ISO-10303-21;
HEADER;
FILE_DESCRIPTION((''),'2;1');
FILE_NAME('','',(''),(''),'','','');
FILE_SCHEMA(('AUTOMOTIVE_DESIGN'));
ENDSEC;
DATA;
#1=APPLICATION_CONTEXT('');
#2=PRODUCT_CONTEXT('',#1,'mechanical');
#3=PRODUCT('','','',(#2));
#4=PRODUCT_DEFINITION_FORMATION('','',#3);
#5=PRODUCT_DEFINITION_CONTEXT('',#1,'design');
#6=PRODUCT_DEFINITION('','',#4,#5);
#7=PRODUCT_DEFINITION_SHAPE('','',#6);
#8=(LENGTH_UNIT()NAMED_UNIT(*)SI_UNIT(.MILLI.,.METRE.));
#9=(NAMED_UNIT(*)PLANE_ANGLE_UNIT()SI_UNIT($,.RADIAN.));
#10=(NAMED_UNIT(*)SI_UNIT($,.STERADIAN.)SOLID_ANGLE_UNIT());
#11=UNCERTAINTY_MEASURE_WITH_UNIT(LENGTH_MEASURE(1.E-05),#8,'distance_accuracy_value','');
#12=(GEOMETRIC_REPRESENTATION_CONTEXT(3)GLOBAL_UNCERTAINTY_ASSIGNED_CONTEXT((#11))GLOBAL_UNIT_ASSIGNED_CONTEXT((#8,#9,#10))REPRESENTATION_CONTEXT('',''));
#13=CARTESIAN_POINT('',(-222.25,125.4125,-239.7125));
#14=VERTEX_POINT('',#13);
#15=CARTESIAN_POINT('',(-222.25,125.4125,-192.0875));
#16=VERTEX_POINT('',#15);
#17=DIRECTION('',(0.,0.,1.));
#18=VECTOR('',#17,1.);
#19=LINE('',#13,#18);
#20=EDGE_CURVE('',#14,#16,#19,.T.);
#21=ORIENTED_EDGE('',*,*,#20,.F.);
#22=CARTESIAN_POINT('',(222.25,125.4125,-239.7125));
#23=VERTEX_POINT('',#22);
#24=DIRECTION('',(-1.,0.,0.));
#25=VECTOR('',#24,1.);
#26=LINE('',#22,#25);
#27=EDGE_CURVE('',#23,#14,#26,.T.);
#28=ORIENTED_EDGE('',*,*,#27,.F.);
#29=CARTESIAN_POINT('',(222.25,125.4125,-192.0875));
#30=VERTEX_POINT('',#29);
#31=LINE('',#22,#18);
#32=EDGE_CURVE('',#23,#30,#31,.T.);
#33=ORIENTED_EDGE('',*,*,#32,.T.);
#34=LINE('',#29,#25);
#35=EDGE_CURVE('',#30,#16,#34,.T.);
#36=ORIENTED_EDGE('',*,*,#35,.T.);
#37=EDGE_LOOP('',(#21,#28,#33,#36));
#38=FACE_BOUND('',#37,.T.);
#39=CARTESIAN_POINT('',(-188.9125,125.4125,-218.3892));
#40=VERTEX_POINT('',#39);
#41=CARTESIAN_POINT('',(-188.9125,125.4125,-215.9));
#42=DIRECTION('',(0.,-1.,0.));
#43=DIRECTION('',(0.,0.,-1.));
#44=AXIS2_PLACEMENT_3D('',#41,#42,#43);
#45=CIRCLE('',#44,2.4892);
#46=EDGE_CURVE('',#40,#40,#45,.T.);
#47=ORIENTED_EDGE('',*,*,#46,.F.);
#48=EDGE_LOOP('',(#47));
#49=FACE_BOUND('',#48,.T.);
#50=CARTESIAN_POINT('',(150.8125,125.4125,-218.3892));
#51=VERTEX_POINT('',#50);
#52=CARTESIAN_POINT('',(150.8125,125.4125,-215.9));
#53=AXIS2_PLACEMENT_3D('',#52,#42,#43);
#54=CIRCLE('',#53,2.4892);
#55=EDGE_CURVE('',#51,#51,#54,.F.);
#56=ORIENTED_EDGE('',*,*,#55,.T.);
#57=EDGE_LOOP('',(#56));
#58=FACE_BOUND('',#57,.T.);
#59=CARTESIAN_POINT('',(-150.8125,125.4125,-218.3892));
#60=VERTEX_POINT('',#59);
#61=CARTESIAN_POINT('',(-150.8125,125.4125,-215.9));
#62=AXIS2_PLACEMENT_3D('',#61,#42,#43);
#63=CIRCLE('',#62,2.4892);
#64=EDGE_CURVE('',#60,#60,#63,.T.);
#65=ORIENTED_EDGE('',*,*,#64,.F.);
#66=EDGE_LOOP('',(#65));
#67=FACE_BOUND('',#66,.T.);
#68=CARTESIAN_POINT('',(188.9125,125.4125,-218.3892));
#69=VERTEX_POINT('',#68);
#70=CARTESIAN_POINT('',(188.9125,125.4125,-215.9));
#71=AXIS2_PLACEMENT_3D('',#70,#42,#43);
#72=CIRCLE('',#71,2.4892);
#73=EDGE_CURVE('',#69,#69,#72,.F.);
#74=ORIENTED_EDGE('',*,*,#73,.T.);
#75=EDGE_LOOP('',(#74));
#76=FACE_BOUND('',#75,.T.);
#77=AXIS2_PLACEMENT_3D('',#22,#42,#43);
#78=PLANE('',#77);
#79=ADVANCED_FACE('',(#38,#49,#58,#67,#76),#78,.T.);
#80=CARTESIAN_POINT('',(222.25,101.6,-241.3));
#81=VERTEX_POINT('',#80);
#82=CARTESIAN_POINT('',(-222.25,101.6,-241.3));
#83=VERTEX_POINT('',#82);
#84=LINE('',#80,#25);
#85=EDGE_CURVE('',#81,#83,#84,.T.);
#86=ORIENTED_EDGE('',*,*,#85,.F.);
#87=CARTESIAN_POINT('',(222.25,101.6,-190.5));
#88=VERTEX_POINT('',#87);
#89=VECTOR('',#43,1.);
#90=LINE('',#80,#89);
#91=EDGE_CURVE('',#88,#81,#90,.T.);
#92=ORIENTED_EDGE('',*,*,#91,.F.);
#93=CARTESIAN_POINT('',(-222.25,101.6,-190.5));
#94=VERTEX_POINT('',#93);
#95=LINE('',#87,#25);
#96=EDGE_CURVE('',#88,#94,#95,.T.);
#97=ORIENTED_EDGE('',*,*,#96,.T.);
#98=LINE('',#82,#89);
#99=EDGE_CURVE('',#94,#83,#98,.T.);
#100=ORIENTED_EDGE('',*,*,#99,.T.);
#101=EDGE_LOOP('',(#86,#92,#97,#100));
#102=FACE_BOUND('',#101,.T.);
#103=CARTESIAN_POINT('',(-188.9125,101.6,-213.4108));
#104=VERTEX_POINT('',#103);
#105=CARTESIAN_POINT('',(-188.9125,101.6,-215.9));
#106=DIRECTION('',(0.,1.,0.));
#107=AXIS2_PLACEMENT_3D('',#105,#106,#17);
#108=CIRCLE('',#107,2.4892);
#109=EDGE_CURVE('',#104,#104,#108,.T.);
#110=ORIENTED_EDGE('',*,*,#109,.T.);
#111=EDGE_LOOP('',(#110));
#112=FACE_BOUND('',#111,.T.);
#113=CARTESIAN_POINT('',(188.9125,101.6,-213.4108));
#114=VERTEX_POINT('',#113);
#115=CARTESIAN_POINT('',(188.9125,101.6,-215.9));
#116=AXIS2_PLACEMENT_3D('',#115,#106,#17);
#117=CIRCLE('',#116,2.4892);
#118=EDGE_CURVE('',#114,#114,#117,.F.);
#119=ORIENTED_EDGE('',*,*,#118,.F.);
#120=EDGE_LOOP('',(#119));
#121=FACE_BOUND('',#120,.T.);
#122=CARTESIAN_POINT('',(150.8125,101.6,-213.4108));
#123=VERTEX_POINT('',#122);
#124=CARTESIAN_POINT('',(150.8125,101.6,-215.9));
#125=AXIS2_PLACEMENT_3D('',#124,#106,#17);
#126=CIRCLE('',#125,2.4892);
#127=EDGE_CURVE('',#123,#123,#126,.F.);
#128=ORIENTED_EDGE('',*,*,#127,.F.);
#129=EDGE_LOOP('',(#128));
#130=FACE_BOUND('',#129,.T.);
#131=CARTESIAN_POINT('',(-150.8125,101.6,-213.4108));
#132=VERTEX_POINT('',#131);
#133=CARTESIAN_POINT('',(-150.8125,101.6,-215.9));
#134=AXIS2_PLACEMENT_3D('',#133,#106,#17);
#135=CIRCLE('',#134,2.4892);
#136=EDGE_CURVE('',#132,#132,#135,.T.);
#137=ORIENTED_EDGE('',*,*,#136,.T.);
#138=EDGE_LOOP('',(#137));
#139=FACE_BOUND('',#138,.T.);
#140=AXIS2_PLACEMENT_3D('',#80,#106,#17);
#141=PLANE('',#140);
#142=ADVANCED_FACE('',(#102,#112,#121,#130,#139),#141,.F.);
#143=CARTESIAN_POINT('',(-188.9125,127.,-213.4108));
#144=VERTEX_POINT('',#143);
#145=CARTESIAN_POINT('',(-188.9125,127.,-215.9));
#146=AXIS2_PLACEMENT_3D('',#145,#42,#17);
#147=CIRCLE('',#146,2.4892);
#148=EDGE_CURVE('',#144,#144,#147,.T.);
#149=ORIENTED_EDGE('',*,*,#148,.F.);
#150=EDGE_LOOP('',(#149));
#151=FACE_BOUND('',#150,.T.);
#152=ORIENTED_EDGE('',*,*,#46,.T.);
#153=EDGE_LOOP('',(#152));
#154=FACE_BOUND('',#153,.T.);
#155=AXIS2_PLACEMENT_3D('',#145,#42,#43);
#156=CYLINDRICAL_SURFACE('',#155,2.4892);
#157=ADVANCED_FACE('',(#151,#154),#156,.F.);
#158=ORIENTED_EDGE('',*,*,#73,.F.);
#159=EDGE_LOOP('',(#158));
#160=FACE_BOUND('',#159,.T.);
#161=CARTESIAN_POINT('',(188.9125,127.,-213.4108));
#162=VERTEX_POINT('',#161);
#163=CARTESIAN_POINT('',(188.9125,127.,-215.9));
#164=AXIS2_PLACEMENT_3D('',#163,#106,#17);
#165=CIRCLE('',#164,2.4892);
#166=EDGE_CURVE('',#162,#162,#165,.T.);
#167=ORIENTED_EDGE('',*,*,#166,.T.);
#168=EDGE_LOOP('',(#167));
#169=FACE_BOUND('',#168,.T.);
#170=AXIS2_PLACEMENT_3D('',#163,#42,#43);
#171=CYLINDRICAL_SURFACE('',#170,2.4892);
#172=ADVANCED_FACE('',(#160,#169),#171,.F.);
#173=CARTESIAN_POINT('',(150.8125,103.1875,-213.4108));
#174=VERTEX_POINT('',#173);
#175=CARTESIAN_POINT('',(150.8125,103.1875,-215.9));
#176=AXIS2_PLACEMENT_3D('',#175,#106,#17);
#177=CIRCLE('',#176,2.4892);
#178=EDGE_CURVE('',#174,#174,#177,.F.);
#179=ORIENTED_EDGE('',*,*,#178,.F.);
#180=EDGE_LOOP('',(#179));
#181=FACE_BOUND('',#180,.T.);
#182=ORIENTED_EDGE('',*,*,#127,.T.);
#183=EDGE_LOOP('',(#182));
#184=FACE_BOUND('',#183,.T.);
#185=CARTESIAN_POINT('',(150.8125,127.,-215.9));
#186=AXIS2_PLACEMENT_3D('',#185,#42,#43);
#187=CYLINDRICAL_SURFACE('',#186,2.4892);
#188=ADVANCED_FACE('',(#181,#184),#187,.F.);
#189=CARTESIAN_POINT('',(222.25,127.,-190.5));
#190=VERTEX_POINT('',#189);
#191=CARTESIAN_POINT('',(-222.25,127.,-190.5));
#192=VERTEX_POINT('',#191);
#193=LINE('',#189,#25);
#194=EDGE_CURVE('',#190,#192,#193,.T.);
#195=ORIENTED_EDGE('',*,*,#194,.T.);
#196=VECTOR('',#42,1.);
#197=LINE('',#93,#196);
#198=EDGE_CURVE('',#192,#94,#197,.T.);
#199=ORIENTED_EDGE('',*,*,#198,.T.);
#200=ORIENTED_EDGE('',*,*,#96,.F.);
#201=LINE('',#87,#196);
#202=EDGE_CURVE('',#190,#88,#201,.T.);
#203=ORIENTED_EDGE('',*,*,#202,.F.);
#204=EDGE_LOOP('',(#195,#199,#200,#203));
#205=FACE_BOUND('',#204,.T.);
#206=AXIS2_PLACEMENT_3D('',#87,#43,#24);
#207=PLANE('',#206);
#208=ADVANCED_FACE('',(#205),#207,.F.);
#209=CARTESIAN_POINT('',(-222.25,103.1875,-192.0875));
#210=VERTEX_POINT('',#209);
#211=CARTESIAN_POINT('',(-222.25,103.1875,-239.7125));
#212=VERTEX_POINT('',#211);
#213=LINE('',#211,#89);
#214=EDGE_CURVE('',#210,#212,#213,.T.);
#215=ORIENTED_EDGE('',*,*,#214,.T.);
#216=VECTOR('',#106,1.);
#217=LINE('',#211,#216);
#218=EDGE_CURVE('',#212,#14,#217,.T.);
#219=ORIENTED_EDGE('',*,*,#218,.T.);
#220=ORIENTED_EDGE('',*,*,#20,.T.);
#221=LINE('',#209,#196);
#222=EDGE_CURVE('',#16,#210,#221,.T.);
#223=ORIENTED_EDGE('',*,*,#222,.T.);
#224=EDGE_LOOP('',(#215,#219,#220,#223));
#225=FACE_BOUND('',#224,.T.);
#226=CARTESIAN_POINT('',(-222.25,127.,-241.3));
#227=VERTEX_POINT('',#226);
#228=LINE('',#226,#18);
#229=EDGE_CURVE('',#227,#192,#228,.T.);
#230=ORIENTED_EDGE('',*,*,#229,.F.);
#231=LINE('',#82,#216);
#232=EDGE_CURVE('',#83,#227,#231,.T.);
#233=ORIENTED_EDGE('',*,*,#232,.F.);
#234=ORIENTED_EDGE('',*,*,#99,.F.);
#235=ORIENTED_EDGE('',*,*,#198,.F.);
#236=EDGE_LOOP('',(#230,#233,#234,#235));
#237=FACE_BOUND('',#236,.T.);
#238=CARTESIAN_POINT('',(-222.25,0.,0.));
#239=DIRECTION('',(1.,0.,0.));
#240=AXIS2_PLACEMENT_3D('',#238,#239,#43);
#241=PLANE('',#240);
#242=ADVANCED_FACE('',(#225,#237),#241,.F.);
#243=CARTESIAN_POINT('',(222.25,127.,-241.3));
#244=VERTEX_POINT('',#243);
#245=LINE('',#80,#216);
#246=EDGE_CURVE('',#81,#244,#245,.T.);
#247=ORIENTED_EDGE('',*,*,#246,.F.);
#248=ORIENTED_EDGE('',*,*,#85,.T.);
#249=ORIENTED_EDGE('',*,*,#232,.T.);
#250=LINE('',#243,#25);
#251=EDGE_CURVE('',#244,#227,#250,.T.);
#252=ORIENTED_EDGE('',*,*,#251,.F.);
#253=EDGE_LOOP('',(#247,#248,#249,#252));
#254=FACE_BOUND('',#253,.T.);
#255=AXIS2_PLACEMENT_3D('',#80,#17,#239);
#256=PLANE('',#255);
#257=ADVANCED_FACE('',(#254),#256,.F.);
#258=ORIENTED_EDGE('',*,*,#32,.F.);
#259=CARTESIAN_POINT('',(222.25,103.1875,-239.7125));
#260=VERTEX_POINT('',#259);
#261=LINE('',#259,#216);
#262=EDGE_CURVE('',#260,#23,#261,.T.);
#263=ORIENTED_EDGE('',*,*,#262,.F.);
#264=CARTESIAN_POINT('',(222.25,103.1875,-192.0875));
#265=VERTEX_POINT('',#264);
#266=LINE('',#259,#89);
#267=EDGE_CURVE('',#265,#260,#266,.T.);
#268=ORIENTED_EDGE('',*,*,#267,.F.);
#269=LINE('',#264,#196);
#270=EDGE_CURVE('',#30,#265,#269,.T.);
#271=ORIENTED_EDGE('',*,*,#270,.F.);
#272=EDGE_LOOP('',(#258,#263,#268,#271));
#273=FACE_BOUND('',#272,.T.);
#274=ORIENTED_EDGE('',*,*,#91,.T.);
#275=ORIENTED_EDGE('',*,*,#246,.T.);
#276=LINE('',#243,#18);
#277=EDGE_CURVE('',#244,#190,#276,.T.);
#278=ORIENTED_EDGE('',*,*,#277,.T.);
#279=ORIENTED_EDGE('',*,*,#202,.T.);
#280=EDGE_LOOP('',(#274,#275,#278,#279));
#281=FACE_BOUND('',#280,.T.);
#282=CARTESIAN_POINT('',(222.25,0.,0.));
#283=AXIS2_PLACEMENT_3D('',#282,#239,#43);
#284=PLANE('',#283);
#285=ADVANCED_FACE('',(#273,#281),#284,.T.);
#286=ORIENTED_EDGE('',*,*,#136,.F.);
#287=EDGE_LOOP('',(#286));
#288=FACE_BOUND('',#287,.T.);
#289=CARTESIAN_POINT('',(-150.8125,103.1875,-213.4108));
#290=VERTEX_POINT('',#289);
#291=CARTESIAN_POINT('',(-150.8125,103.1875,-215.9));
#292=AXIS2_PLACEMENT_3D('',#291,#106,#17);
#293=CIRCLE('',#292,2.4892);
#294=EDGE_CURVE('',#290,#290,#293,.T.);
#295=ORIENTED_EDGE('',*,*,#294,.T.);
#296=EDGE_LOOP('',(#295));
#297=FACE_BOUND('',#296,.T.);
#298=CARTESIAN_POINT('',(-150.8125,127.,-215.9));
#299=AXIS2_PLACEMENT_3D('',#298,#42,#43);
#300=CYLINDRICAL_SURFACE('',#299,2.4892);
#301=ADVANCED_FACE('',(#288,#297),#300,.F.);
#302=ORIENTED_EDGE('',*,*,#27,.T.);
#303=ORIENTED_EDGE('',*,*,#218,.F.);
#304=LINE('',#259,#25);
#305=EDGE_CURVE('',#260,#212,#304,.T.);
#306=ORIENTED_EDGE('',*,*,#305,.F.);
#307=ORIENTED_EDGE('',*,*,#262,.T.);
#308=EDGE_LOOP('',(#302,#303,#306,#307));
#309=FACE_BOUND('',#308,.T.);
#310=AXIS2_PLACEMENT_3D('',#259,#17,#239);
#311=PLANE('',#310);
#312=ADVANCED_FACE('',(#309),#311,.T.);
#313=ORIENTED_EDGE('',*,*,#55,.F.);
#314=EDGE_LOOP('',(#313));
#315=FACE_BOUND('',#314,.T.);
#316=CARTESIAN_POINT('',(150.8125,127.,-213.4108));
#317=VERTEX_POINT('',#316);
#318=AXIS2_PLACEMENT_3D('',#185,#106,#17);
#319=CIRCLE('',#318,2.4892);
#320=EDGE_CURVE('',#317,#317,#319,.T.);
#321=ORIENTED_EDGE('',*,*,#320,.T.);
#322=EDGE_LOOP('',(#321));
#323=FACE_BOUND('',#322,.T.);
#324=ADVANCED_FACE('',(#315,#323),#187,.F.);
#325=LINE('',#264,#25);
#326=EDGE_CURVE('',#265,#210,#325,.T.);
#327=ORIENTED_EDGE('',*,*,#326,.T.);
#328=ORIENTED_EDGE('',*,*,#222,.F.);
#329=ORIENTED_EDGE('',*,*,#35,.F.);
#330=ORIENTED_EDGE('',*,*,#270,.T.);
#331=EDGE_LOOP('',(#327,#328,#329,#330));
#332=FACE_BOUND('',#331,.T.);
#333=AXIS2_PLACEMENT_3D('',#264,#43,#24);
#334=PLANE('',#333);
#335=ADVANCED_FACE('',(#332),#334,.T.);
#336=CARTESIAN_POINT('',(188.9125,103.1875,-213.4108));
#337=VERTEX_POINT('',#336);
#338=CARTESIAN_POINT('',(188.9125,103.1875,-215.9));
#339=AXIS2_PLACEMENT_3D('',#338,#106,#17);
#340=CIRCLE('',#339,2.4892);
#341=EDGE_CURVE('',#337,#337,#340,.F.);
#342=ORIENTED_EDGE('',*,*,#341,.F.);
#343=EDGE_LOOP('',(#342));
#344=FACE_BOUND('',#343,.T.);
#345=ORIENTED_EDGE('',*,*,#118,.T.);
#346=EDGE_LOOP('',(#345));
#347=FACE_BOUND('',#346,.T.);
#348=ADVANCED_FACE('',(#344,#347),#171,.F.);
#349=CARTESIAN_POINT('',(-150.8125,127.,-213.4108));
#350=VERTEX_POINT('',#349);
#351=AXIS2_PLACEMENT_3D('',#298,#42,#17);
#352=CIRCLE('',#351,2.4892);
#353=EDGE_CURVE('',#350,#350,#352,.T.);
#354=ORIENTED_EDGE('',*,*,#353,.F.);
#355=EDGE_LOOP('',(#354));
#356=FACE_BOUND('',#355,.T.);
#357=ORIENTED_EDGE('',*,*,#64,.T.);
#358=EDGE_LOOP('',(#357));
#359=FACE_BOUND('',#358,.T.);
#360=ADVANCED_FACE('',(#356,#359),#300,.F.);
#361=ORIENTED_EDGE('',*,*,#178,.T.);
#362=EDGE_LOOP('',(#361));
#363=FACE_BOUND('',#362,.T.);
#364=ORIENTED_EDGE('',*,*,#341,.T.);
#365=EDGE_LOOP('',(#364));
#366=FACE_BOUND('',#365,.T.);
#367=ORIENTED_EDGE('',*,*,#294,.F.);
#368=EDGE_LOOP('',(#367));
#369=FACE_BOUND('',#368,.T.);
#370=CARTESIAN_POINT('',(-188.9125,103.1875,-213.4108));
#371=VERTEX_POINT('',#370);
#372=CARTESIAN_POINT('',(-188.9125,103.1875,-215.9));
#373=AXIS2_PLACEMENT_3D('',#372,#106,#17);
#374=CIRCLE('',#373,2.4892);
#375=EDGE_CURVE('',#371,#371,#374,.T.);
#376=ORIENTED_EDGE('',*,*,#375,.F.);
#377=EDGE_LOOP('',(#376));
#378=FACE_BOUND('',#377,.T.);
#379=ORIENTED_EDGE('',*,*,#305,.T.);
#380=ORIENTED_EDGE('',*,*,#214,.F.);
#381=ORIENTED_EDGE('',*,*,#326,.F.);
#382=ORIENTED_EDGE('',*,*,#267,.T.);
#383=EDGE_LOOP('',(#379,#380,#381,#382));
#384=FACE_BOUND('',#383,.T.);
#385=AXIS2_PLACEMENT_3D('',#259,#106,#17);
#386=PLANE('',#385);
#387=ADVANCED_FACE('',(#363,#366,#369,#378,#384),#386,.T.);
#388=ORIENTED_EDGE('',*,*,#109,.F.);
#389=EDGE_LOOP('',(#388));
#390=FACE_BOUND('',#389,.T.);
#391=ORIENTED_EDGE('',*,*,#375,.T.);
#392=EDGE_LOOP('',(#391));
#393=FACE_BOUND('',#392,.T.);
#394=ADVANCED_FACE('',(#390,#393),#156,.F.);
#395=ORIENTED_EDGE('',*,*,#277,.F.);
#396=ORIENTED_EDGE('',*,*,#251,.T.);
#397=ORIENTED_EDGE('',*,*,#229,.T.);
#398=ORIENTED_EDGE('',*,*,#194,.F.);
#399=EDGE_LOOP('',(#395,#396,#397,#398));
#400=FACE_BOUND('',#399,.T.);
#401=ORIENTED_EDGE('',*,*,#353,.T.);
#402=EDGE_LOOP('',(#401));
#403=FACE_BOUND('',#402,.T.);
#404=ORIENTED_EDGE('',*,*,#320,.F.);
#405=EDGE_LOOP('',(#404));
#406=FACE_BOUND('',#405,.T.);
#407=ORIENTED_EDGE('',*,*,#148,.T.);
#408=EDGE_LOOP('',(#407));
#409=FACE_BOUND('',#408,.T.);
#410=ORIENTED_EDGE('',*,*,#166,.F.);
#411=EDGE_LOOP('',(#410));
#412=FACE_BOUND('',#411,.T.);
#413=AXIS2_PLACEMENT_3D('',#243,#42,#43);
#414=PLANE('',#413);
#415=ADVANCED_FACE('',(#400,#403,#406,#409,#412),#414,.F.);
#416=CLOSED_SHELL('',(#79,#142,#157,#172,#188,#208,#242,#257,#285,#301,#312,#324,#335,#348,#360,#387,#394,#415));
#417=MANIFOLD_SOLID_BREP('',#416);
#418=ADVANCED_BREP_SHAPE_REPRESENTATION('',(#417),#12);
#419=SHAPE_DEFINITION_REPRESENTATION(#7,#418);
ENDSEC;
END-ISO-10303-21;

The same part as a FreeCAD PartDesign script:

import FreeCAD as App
import Part
import Sketcher
Q = App.Units.Quantity


def add_polygon(sketch, points):
    """Adds a closed chain of lines whose ends are joined by coincident constraints."""
    first, n = sketch.GeometryCount, len(points)
    for a, b in zip(points, points[1:] + points[:1]):
        sketch.addGeometry(Part.LineSegment(App.Vector(*a, 0), App.Vector(*b, 0)), False)
    for i in range(n):
        sketch.addConstraint(Sketcher.Constraint("Coincident", first + i, 2, first + (i + 1) % n, 1))

doc = App.newDocument("Part")
body = doc.addObject("PartDesign::Body", "Body")

# Sketch on YZ plane
sketch1 = body.newObject("Sketcher::SketchObject", "Sketch")
sketch1.AttachmentSupport = (doc.getObject("YZ_Plane"), [""])
sketch1.MapMode = "FlatFace"
add_polygon(sketch1, [(127, -190), (102, -190), (102, -241), (127, -241)])  # lines 0-3
add_polygon(sketch1, [(103, -240), (103, -192), (125, -192), (125, -240)])  # lines 4-7
sketch1.addConstraint([
    Sketcher.Constraint("Horizontal", 0),
    Sketcher.Constraint("Vertical", 1),
    Sketcher.Constraint("Horizontal", 2),
    Sketcher.Constraint("Vertical", 3),
    Sketcher.Constraint("Vertical", 4),
    Sketcher.Constraint("Horizontal", 5),
    Sketcher.Constraint("Vertical", 6),
    Sketcher.Constraint("Horizontal", 7),
    Sketcher.Constraint("DistanceX", 0, 2, 0, 1, Q("1 in")),
    Sketcher.Constraint("DistanceY", 1, 2, 1, 1, Q("2 in")),
    Sketcher.Constraint("DistanceX", -1, 1, 0, 2, Q("4 in")),
    Sketcher.Constraint("DistanceY", 0, 2, -1, 1, Q("7.5 in")),
    Sketcher.Constraint("DistanceX", 5, 1, 5, 2, Q("0.875 in")),
    Sketcher.Constraint("DistanceY", 4, 1, 4, 2, Q("1.875 in")),
    Sketcher.Constraint("DistanceX", -1, 1, 4, 2, Q("4.0625 in")),
    Sketcher.Constraint("DistanceY", 4, 2, -1, 1, Q("7.5625 in")),
])
pad1 = body.newObject("PartDesign::Pad", "Pad")
pad1.Profile = sketch1
pad1.Type = "TwoLengths"
pad1.Length = Q("8.75 in")
pad1.Length2 = Q("8.75 in")

# Sketch on XZ plane
sketch2 = body.newObject("Sketcher::SketchObject", "Sketch001")
sketch2.AttachmentSupport = (doc.getObject("XZ_Plane"), [""])
sketch2.MapMode = "FlatFace"
sketch2.addGeometry([
    Part.Circle(App.Vector(150.8, -215.9, 0), App.Vector(0, 0, 1), 2.5),
    Part.Circle(App.Vector(188.9, -215.9, 0), App.Vector(0, 0, 1), 2.5),
], False)
sketch2.addConstraint([
    Sketcher.Constraint("Equal", 0, 1),
    Sketcher.Constraint("Horizontal", 0, 3, 1, 3),
    Sketcher.Constraint("Diameter", 0, Q("0.196 in")),
    Sketcher.Constraint("DistanceY", 0, 3, -1, 1, Q("8.5 in")),
    Sketcher.Constraint("DistanceX", 0, 3, 1, 3, Q("1.5 in")),
    Sketcher.Constraint("DistanceX", -1, 1, 0, 3, Q("5.9375 in")),
])
pocket1 = body.newObject("PartDesign::Pocket", "Pocket")
pocket1.Profile = sketch2
pocket1.Type = "ThroughAll"
doc.recompute()

mirrored = body.newObject("PartDesign::Mirrored", "Mirrored")
mirrored.Originals = [pocket1]
mirrored.MirrorPlane = (doc.getObject("YZ_Plane"), [""])
body.Tip = mirrored

doc.recompute()
